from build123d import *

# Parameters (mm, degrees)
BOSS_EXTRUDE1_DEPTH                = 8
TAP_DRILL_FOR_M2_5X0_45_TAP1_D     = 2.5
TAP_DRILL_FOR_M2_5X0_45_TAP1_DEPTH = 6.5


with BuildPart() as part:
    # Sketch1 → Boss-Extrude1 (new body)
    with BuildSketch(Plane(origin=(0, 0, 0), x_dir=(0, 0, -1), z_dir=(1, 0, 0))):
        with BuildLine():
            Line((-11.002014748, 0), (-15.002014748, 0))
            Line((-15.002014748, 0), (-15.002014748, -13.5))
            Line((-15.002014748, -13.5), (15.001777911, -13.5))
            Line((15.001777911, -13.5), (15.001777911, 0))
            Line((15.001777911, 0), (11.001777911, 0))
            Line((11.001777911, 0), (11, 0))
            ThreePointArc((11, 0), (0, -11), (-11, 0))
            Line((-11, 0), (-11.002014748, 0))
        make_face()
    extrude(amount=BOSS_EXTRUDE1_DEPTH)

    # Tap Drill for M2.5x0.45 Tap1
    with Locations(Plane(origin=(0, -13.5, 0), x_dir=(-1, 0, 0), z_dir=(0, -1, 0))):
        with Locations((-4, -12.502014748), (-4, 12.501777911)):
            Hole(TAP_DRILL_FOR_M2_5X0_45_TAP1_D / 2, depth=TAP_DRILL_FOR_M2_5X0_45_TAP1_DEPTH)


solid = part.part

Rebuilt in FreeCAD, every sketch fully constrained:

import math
import FreeCAD as App
import Part
import Sketcher
Q = App.Units.Quantity

doc = App.newDocument("Part")
params = doc.addObject("Spreadsheet::Sheet", "Params")
for row, (alias, value) in enumerate([
    ("sketch1_radius", "11 mm"),
    ("sketch1_width", "13.5 mm"),
    ("pad1_length", "8 mm"),
    ("sketch2_diameter", "2.5 mm"),
    ("hole_diameter", "2.5 mm"),
    ("hole_depth", "6.5 mm"),
], start=1):
    params.set(f"A{row}", alias)
    params.set(f"B{row}", "=" + value)
    params.setAlias(f"B{row}", alias)

body = doc.addObject("PartDesign::Body", "Body")

# Sketch on YZ plane
sketch1 = body.newObject("Sketcher::SketchObject", "Sketch")
sketch1.AttachmentSupport = (doc.getObject("YZ_Plane"), [""])
sketch1.MapMode = "FlatFace"
sketch1.addGeometry(Part.LineSegment(App.Vector(0, 15, 0), App.Vector(-13.5, 15, 0)), False)
sketch1.addGeometry(Part.LineSegment(App.Vector(-13.5, 15, 0), App.Vector(-13.5, -15, 0)), False)
sketch1.addGeometry(Part.LineSegment(App.Vector(-13.5, -15, 0), App.Vector(0, -15, 0)), False)
sketch1.addGeometry(Part.LineSegment(App.Vector(0, -15, 0), App.Vector(0, -11, 0)), False)
sketch1.addGeometry(Part.ArcOfCircle(Part.Circle(App.Vector(0, 0, 0), App.Vector(0, 0, 1), 11), math.radians(90), math.radians(270)), False)
sketch1.addGeometry(Part.LineSegment(App.Vector(0, 11, 0), App.Vector(0, 15, 0)), False)
sketch1.addConstraint(Sketcher.Constraint("Coincident", 0, 2, 1, 1))
sketch1.addConstraint(Sketcher.Constraint("Coincident", 1, 2, 2, 1))
sketch1.addConstraint(Sketcher.Constraint("Coincident", 2, 2, 3, 1))
sketch1.addConstraint(Sketcher.Constraint("Coincident", 3, 2, 4, 2))
sketch1.addConstraint(Sketcher.Constraint("Coincident", 4, 1, 5, 1))
sketch1.addConstraint(Sketcher.Constraint("Coincident", 5, 2, 0, 1))
sketch1.addConstraint(Sketcher.Constraint("Horizontal", 0))
sketch1.addConstraint(Sketcher.Constraint("Vertical", 1))
sketch1.addConstraint(Sketcher.Constraint("Horizontal", 2))
sketch1.addConstraint(Sketcher.Constraint("Vertical", 3))
sketch1.addConstraint(Sketcher.Constraint("Vertical", 5))
sketch1.addConstraint(Sketcher.Constraint("Coincident", 4, 3, -1, 1))
sketch1.addConstraint(Sketcher.Constraint("PointOnObject", 2, 2, -2))
sketch1.addConstraint(Sketcher.Constraint("PointOnObject", 4, 1, -2))
sketch1.addConstraint(Sketcher.Constraint("Radius", 4, Q("11 mm")))
sketch1.addConstraint(Sketcher.Constraint("DistanceX", 0, 2, 0, 1, Q("13.5 mm")))
sketch1.addConstraint(Sketcher.Constraint("DistanceY", 1, 2, 1, 1, Q("30.003793 mm")))
sketch1.addConstraint(Sketcher.Constraint("DistanceY", 3, 1, 3, 2, Q("4.001778 mm")))
sketch1.setExpression("Constraints[14]", "Params.sketch1_radius")
sketch1.setExpression("Constraints[15]", "Params.sketch1_width")
pad1 = body.newObject("PartDesign::Pad", "Pad")
pad1.Profile = sketch1
pad1.setExpression("Length", "Params.pad1_length")

# Sketch on XZ plane
sketch2 = body.newObject("Sketcher::SketchObject", "Sketch001")
sketch2.AttachmentSupport = (doc.getObject("XZ_Plane"), [""])
sketch2.MapMode = "FlatFace"
sketch2.AttachmentOffset = App.Placement(App.Vector(0, 0, 13.5), App.Rotation())
sketch2.addGeometry(Part.Circle(App.Vector(4, 12.5, 0), App.Vector(0, 0, 1), 1.2), False)
sketch2.addGeometry(Part.Circle(App.Vector(4, -12.5, 0), App.Vector(0, 0, 1), 1.2), False)
sketch2.addConstraint(Sketcher.Constraint("Equal", 0, 1))
sketch2.addConstraint(Sketcher.Constraint("Vertical", 0, 3, 1, 3))
sketch2.addConstraint(Sketcher.Constraint("Diameter", 0, Q("2.5 mm")))
sketch2.addConstraint(Sketcher.Constraint("DistanceX", -1, 1, 0, 3, Q("4 mm")))
sketch2.addConstraint(Sketcher.Constraint("DistanceY", -1, 1, 0, 3, Q("12.502015 mm")))
sketch2.addConstraint(Sketcher.Constraint("DistanceY", 1, 3, -1, 1, Q("12.501778 mm")))
sketch2.setExpression("Constraints[2]", "Params.sketch2_diameter")
doc.recompute()
hole = body.newObject("PartDesign::Hole", "Hole")
hole.Profile = sketch2
hole.ThreadType = "None"
hole.setExpression("Diameter", "Params.hole_diameter")
hole.DepthType = "Dimension"
hole.setExpression("Depth", "Params.hole_depth")
hole.DrillPoint = "Flat"

doc.recompute()
